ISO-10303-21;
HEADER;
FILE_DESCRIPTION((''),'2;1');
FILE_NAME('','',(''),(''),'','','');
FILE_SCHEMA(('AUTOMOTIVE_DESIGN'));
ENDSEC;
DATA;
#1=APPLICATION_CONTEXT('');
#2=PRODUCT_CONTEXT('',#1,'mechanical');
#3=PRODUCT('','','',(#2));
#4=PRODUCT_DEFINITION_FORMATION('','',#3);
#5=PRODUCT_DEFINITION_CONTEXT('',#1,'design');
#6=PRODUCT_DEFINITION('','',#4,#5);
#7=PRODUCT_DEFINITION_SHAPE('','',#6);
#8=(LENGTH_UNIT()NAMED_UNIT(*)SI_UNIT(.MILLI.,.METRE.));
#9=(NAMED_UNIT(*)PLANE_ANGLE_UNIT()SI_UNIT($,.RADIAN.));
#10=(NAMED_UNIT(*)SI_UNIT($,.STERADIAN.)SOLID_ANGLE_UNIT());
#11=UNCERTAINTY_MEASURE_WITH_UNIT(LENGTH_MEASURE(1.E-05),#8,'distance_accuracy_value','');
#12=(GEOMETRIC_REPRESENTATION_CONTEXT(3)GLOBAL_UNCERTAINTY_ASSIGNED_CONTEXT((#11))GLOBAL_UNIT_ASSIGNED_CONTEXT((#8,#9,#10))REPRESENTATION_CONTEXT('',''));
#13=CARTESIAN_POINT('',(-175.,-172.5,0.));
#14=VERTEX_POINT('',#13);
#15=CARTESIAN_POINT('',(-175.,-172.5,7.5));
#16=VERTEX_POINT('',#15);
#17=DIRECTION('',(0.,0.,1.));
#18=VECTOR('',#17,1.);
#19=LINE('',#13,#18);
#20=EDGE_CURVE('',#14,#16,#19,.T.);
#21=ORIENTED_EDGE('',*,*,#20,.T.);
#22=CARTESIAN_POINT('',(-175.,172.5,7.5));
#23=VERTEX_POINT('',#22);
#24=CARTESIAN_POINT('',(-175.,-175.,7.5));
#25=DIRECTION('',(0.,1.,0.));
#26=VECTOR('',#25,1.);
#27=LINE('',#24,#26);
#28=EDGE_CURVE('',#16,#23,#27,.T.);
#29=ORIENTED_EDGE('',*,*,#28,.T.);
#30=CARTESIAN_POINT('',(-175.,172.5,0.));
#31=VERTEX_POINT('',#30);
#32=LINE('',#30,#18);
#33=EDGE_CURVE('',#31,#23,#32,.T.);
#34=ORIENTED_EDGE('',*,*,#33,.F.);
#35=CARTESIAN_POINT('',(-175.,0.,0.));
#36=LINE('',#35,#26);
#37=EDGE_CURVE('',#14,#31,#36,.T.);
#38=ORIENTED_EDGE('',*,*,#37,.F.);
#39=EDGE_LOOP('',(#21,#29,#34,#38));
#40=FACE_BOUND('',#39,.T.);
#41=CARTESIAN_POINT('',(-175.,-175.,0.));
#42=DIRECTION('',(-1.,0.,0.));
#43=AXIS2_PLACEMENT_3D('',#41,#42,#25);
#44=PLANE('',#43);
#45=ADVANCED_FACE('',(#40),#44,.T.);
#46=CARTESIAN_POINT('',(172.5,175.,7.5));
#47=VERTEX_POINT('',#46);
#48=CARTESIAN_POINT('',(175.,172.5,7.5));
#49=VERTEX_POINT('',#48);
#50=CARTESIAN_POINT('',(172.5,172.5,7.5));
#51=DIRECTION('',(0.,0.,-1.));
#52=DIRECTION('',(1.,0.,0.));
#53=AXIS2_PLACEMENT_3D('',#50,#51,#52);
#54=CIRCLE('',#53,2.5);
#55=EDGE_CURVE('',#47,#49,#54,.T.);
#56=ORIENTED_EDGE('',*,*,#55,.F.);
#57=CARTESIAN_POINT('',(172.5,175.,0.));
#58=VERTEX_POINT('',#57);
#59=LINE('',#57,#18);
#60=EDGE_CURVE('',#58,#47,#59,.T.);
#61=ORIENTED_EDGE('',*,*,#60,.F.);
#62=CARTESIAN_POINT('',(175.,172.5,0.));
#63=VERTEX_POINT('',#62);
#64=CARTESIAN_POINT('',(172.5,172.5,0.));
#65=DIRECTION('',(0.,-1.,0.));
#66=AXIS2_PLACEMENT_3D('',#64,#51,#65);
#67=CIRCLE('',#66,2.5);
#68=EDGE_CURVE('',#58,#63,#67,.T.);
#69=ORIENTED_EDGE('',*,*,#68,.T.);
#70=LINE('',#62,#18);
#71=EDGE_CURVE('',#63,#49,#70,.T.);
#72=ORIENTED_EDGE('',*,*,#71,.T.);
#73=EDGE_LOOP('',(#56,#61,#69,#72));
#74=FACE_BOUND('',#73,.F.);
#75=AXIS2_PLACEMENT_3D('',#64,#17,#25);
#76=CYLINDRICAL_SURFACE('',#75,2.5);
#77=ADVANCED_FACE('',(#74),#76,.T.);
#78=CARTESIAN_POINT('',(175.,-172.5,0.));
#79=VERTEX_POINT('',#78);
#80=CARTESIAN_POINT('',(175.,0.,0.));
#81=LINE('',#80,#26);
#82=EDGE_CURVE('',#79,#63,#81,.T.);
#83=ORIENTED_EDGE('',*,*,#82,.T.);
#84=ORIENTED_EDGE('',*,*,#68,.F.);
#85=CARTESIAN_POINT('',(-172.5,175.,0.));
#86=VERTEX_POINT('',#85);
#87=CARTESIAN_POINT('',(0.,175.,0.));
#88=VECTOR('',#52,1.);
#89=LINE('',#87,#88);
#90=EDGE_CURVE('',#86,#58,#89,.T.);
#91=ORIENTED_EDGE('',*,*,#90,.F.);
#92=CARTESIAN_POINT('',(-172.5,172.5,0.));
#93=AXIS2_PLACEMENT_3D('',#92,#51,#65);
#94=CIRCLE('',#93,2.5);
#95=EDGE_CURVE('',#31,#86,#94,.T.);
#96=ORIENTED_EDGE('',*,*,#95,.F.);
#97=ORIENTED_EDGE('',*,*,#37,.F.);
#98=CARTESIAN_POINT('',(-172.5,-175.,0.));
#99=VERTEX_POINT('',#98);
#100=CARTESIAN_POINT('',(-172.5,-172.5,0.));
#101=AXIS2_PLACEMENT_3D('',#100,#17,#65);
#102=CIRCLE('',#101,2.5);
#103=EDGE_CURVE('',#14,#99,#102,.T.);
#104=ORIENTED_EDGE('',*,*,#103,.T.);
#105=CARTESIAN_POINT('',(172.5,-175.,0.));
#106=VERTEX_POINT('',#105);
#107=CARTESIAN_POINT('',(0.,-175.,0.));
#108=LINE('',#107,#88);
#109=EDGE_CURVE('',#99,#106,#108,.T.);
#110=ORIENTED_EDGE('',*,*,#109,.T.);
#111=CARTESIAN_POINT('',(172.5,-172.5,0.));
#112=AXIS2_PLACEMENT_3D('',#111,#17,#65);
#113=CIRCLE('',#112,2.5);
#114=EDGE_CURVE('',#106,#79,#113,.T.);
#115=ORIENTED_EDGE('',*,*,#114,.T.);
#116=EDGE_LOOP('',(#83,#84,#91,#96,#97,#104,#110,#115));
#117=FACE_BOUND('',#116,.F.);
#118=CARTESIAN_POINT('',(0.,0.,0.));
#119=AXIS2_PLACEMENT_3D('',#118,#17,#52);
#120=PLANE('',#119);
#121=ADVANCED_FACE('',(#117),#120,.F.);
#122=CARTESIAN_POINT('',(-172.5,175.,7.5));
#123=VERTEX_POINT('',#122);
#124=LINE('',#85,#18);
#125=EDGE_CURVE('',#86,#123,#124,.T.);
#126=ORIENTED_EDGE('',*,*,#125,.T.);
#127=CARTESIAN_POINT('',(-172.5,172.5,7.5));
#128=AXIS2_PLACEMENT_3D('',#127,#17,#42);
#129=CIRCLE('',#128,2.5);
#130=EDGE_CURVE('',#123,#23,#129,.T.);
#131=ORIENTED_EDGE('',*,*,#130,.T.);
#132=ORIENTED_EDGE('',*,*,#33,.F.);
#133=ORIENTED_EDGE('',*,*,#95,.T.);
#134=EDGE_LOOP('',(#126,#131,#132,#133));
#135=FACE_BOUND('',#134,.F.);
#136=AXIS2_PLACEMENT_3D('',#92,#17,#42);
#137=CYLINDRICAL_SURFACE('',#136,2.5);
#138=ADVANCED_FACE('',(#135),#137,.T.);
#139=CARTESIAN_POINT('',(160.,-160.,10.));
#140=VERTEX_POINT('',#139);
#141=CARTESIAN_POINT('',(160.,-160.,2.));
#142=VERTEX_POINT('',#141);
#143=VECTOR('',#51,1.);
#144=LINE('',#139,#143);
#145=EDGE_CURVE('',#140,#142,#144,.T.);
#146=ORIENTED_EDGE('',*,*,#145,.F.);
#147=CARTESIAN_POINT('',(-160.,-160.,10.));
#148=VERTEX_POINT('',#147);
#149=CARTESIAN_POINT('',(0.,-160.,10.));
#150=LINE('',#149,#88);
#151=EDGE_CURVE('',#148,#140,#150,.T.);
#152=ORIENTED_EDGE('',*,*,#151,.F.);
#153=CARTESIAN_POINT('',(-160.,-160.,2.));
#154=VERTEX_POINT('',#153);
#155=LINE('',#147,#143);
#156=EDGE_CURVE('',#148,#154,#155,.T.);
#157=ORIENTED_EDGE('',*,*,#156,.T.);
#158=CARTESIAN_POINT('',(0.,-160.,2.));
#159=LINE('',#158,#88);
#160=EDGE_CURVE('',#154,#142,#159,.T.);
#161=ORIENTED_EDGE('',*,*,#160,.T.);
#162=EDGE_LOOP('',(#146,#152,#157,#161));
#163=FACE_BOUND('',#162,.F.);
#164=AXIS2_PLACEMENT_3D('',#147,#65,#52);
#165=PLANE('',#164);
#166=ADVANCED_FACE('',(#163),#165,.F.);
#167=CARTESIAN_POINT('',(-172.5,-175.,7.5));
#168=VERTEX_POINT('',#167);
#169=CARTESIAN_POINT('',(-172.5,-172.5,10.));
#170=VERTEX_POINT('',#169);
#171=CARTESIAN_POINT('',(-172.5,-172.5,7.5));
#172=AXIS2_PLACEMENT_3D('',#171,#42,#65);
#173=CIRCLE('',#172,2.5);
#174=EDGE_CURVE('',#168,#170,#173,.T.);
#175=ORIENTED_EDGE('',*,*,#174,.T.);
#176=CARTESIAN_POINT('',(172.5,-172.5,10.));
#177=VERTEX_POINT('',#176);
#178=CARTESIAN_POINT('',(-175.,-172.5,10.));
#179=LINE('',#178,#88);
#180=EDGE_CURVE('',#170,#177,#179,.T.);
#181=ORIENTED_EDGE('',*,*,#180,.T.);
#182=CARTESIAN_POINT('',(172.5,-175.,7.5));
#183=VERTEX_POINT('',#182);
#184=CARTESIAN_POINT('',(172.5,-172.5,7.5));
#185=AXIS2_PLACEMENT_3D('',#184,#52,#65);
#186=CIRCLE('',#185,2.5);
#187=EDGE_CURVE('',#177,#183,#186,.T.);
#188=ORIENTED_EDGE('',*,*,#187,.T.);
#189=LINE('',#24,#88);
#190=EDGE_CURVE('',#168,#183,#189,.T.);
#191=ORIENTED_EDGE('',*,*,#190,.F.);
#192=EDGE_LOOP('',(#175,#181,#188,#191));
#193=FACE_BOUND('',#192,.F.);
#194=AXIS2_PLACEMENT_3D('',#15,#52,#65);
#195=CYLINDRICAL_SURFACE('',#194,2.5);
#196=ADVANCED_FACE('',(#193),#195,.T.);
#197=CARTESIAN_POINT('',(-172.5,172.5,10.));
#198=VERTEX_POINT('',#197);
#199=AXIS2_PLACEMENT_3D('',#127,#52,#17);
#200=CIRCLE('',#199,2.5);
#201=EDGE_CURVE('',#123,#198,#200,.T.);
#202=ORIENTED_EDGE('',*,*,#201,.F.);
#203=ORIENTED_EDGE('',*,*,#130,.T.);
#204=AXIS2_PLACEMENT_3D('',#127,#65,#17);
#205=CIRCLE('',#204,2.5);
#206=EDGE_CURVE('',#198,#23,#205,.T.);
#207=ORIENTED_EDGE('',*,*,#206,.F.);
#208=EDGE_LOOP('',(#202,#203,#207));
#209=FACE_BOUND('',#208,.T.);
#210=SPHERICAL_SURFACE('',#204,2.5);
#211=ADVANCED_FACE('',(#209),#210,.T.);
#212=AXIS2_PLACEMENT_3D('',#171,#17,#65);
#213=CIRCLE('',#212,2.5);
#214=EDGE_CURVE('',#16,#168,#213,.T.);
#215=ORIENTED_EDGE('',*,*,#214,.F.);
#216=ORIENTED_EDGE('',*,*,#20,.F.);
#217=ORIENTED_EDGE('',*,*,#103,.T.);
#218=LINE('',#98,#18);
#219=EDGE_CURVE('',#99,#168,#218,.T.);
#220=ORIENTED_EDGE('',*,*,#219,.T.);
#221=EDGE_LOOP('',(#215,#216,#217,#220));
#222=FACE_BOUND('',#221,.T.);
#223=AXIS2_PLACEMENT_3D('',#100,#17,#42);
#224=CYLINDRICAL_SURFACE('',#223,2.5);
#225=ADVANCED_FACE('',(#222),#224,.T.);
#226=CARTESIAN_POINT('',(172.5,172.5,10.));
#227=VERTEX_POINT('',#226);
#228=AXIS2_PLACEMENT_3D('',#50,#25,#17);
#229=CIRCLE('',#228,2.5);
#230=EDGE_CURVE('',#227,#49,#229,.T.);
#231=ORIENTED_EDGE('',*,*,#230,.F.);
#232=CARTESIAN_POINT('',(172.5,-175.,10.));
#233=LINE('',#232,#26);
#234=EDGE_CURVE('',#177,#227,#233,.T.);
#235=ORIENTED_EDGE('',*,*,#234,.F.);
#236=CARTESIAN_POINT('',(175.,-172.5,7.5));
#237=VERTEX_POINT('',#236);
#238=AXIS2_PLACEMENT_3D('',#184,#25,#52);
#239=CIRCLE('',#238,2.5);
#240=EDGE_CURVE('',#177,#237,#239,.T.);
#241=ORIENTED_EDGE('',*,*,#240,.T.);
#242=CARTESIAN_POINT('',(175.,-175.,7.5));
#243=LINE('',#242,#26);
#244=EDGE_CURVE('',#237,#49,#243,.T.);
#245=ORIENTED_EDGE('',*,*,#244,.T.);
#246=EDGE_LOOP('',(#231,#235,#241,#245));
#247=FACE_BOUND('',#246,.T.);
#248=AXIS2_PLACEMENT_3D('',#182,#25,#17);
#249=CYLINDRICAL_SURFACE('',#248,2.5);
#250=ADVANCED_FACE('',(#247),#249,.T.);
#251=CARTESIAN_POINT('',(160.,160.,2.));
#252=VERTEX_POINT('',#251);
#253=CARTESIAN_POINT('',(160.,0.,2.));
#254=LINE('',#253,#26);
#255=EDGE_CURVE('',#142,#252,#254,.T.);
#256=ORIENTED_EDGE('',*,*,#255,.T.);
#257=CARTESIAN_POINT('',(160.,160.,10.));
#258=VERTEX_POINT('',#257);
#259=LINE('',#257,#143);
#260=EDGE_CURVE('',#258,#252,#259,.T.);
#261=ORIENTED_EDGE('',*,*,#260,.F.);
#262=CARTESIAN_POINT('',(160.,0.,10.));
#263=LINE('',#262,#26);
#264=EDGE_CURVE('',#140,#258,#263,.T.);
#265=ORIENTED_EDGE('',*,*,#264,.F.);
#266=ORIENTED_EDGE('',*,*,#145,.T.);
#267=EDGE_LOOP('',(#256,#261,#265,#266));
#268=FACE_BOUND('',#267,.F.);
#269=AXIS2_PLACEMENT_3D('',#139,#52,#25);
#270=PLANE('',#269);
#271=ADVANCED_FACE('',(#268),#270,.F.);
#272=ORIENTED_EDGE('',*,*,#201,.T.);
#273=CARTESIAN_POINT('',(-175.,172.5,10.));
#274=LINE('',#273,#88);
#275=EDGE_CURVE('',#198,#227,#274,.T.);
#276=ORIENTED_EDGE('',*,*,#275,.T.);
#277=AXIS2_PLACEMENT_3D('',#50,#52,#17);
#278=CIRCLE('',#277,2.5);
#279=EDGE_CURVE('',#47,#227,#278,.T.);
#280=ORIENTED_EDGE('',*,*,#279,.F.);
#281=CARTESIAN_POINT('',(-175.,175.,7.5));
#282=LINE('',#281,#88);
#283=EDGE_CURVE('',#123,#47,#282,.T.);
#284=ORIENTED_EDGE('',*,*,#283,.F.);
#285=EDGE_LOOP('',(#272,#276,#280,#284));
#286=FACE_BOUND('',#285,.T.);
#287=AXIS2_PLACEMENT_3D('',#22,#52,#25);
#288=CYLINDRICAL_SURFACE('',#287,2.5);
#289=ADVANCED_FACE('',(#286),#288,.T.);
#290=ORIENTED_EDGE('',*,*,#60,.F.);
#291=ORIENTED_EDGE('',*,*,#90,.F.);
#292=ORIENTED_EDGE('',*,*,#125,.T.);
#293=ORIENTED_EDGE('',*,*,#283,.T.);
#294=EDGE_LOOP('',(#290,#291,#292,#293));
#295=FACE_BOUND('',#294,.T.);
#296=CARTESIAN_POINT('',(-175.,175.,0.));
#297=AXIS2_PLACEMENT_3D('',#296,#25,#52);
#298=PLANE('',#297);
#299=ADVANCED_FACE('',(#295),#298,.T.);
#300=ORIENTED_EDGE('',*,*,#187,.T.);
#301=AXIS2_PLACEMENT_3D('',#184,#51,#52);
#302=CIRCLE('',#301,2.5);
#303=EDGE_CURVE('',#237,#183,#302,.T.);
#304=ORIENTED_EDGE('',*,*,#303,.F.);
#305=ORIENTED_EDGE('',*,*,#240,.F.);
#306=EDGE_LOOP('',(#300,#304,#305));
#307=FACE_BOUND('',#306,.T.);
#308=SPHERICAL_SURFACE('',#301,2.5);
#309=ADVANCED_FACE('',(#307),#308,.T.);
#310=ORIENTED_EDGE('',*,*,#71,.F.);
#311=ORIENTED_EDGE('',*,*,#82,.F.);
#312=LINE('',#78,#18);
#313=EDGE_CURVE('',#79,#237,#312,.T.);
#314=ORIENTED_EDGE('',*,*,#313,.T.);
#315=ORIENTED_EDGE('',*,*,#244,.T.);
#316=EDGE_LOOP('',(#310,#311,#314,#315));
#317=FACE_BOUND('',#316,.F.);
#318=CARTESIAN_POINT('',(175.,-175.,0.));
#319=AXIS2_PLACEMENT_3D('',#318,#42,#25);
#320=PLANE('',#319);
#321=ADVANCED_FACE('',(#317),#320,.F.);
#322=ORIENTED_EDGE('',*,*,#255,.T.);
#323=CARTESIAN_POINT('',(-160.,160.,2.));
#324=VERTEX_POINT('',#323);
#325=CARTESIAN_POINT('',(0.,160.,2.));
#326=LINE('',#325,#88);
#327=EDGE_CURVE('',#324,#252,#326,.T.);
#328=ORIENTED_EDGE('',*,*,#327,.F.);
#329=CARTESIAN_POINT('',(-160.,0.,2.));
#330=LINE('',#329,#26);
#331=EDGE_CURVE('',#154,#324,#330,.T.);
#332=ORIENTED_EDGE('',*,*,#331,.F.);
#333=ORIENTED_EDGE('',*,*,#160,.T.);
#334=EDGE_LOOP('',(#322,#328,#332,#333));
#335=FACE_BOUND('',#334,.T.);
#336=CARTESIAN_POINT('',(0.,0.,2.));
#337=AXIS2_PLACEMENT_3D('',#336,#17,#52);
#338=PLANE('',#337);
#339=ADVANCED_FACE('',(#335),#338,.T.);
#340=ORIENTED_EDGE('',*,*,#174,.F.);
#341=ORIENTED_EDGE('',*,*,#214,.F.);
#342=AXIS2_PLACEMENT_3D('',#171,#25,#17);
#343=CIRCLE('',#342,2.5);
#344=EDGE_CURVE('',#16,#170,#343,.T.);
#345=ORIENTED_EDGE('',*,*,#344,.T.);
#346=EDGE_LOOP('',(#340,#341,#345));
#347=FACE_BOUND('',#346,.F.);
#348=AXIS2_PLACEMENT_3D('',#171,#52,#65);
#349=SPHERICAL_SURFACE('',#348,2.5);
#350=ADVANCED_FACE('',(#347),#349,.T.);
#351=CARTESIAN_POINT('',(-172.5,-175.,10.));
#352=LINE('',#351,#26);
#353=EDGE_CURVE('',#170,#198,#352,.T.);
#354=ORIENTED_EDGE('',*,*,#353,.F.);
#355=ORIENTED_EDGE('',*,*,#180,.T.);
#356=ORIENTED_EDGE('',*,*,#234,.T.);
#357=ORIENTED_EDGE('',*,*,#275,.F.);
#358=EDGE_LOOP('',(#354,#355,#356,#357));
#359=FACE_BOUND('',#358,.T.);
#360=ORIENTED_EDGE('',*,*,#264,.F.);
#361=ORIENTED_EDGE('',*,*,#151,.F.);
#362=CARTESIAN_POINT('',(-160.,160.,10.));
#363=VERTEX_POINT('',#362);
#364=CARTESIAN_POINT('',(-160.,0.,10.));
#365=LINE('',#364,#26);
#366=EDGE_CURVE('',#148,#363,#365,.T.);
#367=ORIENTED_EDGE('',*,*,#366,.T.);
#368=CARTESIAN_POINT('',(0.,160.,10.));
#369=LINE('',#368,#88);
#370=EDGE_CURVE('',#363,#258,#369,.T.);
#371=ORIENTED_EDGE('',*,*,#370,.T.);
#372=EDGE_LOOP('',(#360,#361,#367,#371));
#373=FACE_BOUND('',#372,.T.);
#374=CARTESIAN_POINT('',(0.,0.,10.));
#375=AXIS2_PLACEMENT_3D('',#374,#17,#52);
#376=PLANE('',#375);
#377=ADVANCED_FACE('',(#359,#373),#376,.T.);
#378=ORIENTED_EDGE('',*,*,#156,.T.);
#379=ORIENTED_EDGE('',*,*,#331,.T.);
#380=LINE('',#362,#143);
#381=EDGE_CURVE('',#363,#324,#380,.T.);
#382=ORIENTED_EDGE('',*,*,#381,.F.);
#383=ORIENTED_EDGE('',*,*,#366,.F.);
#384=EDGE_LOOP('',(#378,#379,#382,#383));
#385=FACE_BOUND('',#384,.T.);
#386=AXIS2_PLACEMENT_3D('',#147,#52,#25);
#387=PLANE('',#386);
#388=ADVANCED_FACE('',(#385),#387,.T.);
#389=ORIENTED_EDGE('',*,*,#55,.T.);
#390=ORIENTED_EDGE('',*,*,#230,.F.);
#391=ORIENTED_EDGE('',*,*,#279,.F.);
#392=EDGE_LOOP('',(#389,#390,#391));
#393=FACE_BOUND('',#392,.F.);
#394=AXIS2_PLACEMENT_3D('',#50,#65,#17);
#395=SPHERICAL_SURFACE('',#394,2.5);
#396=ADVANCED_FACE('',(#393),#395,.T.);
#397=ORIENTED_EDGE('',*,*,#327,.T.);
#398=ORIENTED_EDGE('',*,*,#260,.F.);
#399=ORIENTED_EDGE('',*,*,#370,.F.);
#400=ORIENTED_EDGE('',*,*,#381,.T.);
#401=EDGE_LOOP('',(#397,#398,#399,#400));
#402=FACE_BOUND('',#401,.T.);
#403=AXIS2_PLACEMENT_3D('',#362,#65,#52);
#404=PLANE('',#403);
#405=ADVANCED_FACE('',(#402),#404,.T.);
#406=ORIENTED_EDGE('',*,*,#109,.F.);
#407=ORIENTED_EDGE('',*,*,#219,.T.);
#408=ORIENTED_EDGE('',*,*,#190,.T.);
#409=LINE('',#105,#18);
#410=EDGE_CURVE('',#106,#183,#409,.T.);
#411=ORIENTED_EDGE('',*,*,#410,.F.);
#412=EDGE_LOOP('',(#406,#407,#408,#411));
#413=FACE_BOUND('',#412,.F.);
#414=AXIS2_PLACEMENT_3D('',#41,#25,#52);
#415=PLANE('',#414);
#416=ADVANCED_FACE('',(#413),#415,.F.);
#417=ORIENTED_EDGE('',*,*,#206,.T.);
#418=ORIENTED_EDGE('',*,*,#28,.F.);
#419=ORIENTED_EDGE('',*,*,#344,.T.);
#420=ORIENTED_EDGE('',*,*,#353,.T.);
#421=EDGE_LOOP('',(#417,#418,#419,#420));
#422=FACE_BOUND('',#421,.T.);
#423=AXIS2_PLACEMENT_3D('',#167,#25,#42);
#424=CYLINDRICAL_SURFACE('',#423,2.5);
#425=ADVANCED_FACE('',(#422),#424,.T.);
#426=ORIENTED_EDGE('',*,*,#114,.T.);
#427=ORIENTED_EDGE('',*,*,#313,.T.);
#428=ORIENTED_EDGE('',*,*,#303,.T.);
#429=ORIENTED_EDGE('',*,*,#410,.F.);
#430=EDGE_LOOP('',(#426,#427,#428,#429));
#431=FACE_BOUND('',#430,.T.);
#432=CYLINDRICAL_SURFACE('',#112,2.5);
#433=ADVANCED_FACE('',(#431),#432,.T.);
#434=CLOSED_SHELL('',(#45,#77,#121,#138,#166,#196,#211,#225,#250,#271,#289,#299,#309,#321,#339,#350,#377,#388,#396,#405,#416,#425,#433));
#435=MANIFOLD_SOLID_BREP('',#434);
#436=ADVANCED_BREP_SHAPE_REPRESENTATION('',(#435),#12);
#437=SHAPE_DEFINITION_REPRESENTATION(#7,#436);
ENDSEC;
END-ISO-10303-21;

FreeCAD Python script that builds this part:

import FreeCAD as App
import Part
import Sketcher

V = App.Vector


def edges_at(feature, points):
    """Names of the edges that pass closest to the given points."""
    edges = feature.Shape.Edges
    near = lambda p: min(range(len(edges)), key=lambda i: edges[i].distToShape(Part.Vertex(*p))[0])
    return sorted({f"Edge{near(p) + 1}" for p in points})

doc = App.newDocument("Part")
body = doc.addObject("PartDesign::Body", "Body")

# Sketch on XY plane
sketch1 = doc.addObject("Sketcher::SketchObject", "Sketch")
body.addObject(sketch1)
sketch1.AttachmentSupport = (doc.XY_Plane, [""])
sketch1.MapMode = "FlatFace"
sketch1.addGeometry(Part.LineSegment(V(-175, 175, 0), V(-175, -175, 0)), False)
sketch1.addGeometry(Part.LineSegment(V(-175, -175, 0), V(175, -175, 0)), False)
sketch1.addGeometry(Part.LineSegment(V(175, -175, 0), V(175, 175, 0)), False)
sketch1.addGeometry(Part.LineSegment(V(175, 175, 0), V(-175, 175, 0)), False)
sketch1.addConstraint(Sketcher.Constraint("Coincident", 0, 2, 1, 1))
sketch1.addConstraint(Sketcher.Constraint("Coincident", 1, 2, 2, 1))
sketch1.addConstraint(Sketcher.Constraint("Coincident", 2, 2, 3, 1))
sketch1.addConstraint(Sketcher.Constraint("Coincident", 3, 2, 0, 1))
sketch1.addConstraint(Sketcher.Constraint("Vertical", 0))
sketch1.addConstraint(Sketcher.Constraint("Horizontal", 1))
sketch1.addConstraint(Sketcher.Constraint("Vertical", 2))
sketch1.addConstraint(Sketcher.Constraint("Horizontal", 3))
sketch1.addConstraint(Sketcher.Constraint("Symmetric", 0, 2, 2, 2, -1, 1))
sketch1.addConstraint(Sketcher.Constraint("Equal", 3, 0))
sketch1.addConstraint(Sketcher.Constraint("DistanceX", 1, 1, 1, 2, 350.0))
pad1 = doc.addObject("PartDesign::Pad", "Pad")
body.addObject(pad1)
pad1.Profile = sketch1
pad1.Length = 10

# Sketch on XY plane
sketch2 = doc.addObject("Sketcher::SketchObject", "Sketch001")
body.addObject(sketch2)
sketch2.AttachmentSupport = (doc.XY_Plane, [""])
sketch2.MapMode = "FlatFace"
sketch2.AttachmentOffset = App.Placement(V(0, 0, 10), App.Rotation())
sketch2.addGeometry(Part.LineSegment(V(-160, 160, 0), V(-160, -160, 0)), False)
sketch2.addGeometry(Part.LineSegment(V(-160, -160, 0), V(160, -160, 0)), False)
sketch2.addGeometry(Part.LineSegment(V(160, -160, 0), V(160, 160, 0)), False)
sketch2.addGeometry(Part.LineSegment(V(160, 160, 0), V(-160, 160, 0)), False)
sketch2.addConstraint(Sketcher.Constraint("Coincident", 0, 2, 1, 1))
sketch2.addConstraint(Sketcher.Constraint("Coincident", 1, 2, 2, 1))
sketch2.addConstraint(Sketcher.Constraint("Coincident", 2, 2, 3, 1))
sketch2.addConstraint(Sketcher.Constraint("Coincident", 3, 2, 0, 1))
sketch2.addConstraint(Sketcher.Constraint("Vertical", 0))
sketch2.addConstraint(Sketcher.Constraint("Horizontal", 1))
sketch2.addConstraint(Sketcher.Constraint("Vertical", 2))
sketch2.addConstraint(Sketcher.Constraint("Horizontal", 3))
sketch2.addConstraint(Sketcher.Constraint("Symmetric", 0, 2, 2, 2, -1, 1))
sketch2.addConstraint(Sketcher.Constraint("Equal", 3, 0))
sketch2.addConstraint(Sketcher.Constraint("DistanceX", 1, 1, 1, 2, 320.0))
pocket1 = doc.addObject("PartDesign::Pocket", "Pocket")
body.addObject(pocket1)
pocket1.Profile = sketch2
pocket1.Length = 8
doc.recompute()

fillet = doc.addObject("PartDesign::Fillet", "Fillet")
body.addObject(fillet)
fillet.Base = (pocket1, edges_at(pocket1, [
    (175, -175, 5),
    (175, 0, 10),
    (0, -175, 10),
    (-175, -175, 5),
    (-175, 0, 10),
    (0, 175, 10),
    (-175, 175, 5),
    (175, 175, 5),
]))
fillet.Radius = 2.5

doc.recompute()
